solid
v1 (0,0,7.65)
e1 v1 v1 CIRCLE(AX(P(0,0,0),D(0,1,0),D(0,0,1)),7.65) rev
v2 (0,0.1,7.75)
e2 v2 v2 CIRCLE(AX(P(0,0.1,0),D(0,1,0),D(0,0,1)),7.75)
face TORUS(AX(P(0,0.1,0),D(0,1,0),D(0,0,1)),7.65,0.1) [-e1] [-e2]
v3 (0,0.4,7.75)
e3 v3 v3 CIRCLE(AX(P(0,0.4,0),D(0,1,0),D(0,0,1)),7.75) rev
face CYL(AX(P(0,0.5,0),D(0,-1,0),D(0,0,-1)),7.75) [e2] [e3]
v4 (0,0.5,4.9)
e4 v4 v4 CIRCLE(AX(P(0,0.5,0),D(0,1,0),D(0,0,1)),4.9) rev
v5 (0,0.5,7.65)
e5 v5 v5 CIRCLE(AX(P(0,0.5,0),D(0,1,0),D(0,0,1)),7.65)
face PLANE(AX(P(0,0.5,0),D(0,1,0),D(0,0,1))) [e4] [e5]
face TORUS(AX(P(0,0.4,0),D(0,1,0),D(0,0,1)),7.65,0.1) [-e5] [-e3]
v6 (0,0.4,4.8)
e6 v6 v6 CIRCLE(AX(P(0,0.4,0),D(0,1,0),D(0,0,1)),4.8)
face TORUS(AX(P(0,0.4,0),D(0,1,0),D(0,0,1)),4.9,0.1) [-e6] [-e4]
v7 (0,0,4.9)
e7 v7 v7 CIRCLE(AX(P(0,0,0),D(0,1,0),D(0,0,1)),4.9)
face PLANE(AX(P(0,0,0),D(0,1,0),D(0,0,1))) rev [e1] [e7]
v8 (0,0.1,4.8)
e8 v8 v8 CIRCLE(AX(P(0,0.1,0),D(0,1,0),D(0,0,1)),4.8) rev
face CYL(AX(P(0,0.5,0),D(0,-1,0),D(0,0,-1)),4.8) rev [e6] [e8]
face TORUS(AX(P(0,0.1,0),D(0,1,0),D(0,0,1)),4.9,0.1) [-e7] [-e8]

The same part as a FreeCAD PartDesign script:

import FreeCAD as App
import Part
import Sketcher

V = App.Vector
Q = App.Units.Quantity


def edges_at(feature, points):
    """Names of the edges that pass closest to the given points."""
    edges = feature.Shape.Edges
    near = lambda p: min(range(len(edges)), key=lambda i: edges[i].distToShape(Part.Vertex(*p))[0])
    return sorted({f"Edge{near(p) + 1}" for p in points})

doc = App.newDocument("Part")
body = doc.addObject("PartDesign::Body", "Body")

# Sketch on XZ plane
sketch1 = body.newObject("Sketcher::SketchObject", "Sketch")
sketch1.AttachmentSupport = (doc.getObject("XZ_Plane"), [""])
sketch1.MapMode = "FlatFace"
sketch1.addGeometry([
    Part.Circle(V(0, 0, 0), V(0, 0, 1), 7.75),
    Part.Circle(V(0, 0, 0), V(0, 0, 1), 4.8),
], False)
sketch1.addConstraint([
    Sketcher.Constraint("Coincident", 0, 3, -1, 1),
    Sketcher.Constraint("Coincident", 1, 3, -1, 1),
    Sketcher.Constraint("Diameter", 0, Q("15.5 mm")),
    Sketcher.Constraint("Diameter", 1, Q("9.6 mm")),
])
pad1 = body.newObject("PartDesign::Pad", "Pad")
pad1.Profile = sketch1
pad1.Length = 0.5
pad1.Reversed = True
doc.recompute()

fillet = body.newObject("PartDesign::Fillet", "Fillet")
fillet.Base = (pad1, edges_at(pad1, [
    (-7.75, 0, 0),
    (-7.75, 0.5, 0),
    (-4.8, 0, 0),
    (-4.8, 0.5, 0),
]))
fillet.Radius = 0.1

doc.recompute()
